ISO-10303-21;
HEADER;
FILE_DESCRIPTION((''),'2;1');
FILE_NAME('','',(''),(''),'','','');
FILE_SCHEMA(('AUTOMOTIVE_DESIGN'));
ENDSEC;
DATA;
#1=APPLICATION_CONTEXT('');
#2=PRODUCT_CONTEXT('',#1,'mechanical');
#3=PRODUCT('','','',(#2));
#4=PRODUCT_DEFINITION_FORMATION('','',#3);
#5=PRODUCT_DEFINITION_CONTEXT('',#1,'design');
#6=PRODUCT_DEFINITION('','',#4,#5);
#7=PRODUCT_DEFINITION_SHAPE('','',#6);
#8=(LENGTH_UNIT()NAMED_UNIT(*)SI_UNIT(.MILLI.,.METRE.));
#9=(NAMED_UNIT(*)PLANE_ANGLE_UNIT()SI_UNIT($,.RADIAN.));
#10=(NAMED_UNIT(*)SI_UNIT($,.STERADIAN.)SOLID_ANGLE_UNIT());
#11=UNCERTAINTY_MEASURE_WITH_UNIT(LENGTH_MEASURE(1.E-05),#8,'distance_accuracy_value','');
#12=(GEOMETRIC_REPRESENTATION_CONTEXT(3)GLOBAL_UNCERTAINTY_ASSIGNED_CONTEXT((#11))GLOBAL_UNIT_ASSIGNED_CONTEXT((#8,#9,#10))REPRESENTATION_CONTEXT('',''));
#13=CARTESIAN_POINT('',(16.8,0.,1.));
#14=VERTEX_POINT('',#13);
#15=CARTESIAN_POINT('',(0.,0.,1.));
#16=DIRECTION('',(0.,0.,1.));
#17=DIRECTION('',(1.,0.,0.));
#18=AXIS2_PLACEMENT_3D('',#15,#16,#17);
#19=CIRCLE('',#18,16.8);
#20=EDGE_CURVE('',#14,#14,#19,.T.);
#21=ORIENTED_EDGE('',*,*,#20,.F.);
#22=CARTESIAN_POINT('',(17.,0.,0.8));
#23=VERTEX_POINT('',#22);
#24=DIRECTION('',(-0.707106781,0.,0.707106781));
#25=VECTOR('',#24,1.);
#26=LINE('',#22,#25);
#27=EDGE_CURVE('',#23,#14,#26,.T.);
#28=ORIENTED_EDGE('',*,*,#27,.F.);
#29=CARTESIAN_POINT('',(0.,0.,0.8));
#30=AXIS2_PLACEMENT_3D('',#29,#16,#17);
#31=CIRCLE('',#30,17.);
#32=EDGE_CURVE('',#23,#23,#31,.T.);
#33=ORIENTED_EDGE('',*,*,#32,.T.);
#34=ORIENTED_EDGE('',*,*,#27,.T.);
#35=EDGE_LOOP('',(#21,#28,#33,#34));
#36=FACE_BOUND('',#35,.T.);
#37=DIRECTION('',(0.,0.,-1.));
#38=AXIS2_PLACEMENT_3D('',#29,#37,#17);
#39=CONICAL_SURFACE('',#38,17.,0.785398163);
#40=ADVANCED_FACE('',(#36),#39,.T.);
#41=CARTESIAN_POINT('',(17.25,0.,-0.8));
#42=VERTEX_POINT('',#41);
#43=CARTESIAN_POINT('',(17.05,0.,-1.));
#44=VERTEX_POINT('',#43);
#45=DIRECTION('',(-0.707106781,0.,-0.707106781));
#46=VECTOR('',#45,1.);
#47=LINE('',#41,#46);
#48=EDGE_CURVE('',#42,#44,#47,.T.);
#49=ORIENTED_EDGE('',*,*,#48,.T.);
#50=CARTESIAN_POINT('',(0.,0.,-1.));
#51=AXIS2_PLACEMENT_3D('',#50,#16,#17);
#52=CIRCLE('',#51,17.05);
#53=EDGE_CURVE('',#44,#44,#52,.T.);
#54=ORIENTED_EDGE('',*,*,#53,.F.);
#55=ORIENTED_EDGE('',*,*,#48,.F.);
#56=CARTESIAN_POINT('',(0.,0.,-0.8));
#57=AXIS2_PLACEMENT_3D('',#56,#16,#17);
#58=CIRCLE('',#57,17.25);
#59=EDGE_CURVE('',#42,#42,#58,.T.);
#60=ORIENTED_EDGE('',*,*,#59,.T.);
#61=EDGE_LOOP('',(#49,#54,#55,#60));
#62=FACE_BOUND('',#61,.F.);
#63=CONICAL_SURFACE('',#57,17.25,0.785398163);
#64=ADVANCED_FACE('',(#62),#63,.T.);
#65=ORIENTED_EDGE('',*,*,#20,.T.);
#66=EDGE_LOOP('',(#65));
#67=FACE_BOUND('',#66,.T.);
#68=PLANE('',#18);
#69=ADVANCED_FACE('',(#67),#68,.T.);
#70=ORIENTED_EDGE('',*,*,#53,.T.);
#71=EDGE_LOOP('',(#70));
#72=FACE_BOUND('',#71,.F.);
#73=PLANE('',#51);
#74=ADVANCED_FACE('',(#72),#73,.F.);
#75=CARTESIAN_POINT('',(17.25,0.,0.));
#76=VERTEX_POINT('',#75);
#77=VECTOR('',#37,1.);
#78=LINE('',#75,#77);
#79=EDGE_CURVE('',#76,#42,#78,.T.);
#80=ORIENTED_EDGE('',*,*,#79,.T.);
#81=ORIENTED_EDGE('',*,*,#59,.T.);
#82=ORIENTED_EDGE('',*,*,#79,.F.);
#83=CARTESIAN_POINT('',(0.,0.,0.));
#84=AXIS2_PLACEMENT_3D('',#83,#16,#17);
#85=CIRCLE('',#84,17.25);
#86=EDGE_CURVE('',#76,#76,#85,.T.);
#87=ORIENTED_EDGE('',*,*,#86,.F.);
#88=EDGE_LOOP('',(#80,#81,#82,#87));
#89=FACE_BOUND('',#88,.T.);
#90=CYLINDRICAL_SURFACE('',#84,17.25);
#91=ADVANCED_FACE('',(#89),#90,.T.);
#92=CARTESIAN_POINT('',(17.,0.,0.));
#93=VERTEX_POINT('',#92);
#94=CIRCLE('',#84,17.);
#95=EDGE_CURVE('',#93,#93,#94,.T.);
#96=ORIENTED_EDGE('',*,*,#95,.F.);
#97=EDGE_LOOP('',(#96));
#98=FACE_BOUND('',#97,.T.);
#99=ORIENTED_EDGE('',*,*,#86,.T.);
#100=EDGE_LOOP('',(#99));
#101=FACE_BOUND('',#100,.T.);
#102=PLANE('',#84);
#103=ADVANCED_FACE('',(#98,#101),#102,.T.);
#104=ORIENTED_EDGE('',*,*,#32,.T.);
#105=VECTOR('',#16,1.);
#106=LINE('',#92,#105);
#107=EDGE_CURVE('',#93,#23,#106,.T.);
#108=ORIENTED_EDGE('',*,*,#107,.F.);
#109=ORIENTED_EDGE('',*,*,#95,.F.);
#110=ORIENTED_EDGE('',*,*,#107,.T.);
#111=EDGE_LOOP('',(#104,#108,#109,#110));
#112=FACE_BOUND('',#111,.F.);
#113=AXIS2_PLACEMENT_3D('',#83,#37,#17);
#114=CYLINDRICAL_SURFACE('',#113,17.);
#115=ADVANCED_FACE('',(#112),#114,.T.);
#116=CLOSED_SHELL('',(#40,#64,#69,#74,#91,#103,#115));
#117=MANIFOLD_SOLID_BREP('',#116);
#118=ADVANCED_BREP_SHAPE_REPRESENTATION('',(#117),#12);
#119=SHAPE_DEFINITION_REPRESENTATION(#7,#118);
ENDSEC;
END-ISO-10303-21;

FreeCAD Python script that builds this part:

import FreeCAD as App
import Part
import Sketcher


def edges_at(feature, points):
    """Names of the edges that pass closest to the given points."""
    edges = feature.Shape.Edges
    near = lambda p: min(range(len(edges)), key=lambda i: edges[i].distToShape(Part.Vertex(*p))[0])
    return sorted({f"Edge{near(p) + 1}" for p in points})

doc = App.newDocument("Part")
body = doc.addObject("PartDesign::Body", "Body")

sketch1 = body.newObject("Sketcher::SketchObject", "Sketch")
sketch1.AttachmentSupport = (doc.getObject("XY_Plane"), [""])
sketch1.MapMode = "FlatFace"
sketch1.addGeometry(Part.Circle(App.Vector(0, 0, 0), App.Vector(0, 0, 1), 17), False)
sketch1.addConstraint([
    Sketcher.Constraint("Coincident", 0, 3, -1, 1),
    Sketcher.Constraint("Diameter", 0, 34.0),
])
pad1 = body.newObject("PartDesign::Pad", "Pad")
pad1.Profile = sketch1
pad1.Length = 1

sketch2 = body.newObject("Sketcher::SketchObject", "Sketch001")
sketch2.AttachmentSupport = (doc.getObject("XY_Plane"), [""])
sketch2.MapMode = "FlatFace"
sketch2.addGeometry(Part.Circle(App.Vector(0, 0, 0), App.Vector(0, 0, 1), 17), False)
sketch2.addConstraint([
    Sketcher.Constraint("Coincident", 0, 3, -1, 1),
    Sketcher.Constraint("Diameter", 0, 34.5),
])
pad2 = body.newObject("PartDesign::Pad", "Pad001")
pad2.Profile = sketch2
pad2.Length = 1
pad2.Reversed = True
doc.recompute()

chamfer = body.newObject("PartDesign::Chamfer", "Chamfer")
chamfer.Base = (pad2, edges_at(pad2, [(-17, 0, 1), (-17.25, 0, -1)]))
chamfer.Size = 0.2

doc.recompute()
